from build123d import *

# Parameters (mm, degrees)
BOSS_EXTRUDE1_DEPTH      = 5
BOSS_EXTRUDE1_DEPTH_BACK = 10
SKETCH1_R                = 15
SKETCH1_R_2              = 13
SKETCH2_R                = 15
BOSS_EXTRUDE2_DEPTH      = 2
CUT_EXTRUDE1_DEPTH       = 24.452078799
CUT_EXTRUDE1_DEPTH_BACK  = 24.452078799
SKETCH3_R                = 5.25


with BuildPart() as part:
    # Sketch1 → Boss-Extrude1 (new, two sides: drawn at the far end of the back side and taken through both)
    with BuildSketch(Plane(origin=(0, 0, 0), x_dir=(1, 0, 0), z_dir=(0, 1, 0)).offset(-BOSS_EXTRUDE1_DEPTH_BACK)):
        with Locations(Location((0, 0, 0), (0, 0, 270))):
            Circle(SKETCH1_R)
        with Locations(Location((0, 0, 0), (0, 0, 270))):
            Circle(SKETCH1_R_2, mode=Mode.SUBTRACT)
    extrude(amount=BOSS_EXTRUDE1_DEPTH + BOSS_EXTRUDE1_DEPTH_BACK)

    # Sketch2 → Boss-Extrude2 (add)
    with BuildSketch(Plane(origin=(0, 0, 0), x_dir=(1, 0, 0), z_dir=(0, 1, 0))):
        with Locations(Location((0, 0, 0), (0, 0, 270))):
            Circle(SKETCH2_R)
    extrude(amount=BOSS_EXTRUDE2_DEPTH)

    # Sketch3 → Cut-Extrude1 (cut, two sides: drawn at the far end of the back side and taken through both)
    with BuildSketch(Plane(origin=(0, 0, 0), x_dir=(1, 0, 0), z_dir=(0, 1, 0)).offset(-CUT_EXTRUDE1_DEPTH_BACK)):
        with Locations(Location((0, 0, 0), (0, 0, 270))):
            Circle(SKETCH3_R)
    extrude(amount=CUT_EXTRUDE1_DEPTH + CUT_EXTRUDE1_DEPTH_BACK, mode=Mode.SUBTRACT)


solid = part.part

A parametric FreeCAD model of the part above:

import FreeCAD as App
import Part
import Sketcher
from FreeCAD import Vector

doc = App.newDocument("Part")
body = doc.addObject("PartDesign::Body", "Body")

# Sketch on XZ plane
sketch1 = body.newObject("Sketcher::SketchObject", "Sketch")
sketch1.AttachmentSupport = (doc.getObject("XZ_Plane"), [""])
sketch1.MapMode = "FlatFace"
sketch1.addGeometry(Part.Circle(Vector(0, 0, 0), Vector(0, 0, 1), 15), False)
sketch1.addGeometry(Part.Circle(Vector(0, 0, 0), Vector(0, 0, 1), 13), False)
sketch1.addConstraint(Sketcher.Constraint("Coincident", 0, 3, -1, 1))
sketch1.addConstraint(Sketcher.Constraint("Coincident", 1, 3, -1, 1))
sketch1.addConstraint(Sketcher.Constraint("Diameter", 0, 30.0))
sketch1.addConstraint(Sketcher.Constraint("Diameter", 1, 26.0))
pad1 = body.newObject("PartDesign::Pad", "Pad")
pad1.Profile = sketch1
pad1.Type = "TwoLengths"
pad1.Length = 5
pad1.Length2 = 10
pad1.Reversed = True

# Sketch on XZ plane
sketch2 = body.newObject("Sketcher::SketchObject", "Sketch001")
sketch2.AttachmentSupport = (doc.getObject("XZ_Plane"), [""])
sketch2.MapMode = "FlatFace"
sketch2.addGeometry(Part.Circle(Vector(0, 0, 0), Vector(0, 0, 1), 15), False)
sketch2.addConstraint(Sketcher.Constraint("Coincident", 0, 3, -1, 1))
sketch2.addConstraint(Sketcher.Constraint("Diameter", 0, 30.0))
pad2 = body.newObject("PartDesign::Pad", "Pad001")
pad2.Profile = sketch2
pad2.Length = 2
pad2.Reversed = True

# Sketch on XZ plane
sketch3 = body.newObject("Sketcher::SketchObject", "Sketch002")
sketch3.AttachmentSupport = (doc.getObject("XZ_Plane"), [""])
sketch3.MapMode = "FlatFace"
sketch3.addGeometry(Part.Circle(Vector(0, 0, 0), Vector(0, 0, 1), 5), False)
sketch3.addConstraint(Sketcher.Constraint("Coincident", 0, 3, -1, 1))
sketch3.addConstraint(Sketcher.Constraint("Diameter", 0, 10.5))
pocket1 = body.newObject("PartDesign::Pocket", "Pocket")
pocket1.Profile = sketch3
pocket1.Type = "ThroughAll"
pocket1.Midplane = True

doc.recompute()
